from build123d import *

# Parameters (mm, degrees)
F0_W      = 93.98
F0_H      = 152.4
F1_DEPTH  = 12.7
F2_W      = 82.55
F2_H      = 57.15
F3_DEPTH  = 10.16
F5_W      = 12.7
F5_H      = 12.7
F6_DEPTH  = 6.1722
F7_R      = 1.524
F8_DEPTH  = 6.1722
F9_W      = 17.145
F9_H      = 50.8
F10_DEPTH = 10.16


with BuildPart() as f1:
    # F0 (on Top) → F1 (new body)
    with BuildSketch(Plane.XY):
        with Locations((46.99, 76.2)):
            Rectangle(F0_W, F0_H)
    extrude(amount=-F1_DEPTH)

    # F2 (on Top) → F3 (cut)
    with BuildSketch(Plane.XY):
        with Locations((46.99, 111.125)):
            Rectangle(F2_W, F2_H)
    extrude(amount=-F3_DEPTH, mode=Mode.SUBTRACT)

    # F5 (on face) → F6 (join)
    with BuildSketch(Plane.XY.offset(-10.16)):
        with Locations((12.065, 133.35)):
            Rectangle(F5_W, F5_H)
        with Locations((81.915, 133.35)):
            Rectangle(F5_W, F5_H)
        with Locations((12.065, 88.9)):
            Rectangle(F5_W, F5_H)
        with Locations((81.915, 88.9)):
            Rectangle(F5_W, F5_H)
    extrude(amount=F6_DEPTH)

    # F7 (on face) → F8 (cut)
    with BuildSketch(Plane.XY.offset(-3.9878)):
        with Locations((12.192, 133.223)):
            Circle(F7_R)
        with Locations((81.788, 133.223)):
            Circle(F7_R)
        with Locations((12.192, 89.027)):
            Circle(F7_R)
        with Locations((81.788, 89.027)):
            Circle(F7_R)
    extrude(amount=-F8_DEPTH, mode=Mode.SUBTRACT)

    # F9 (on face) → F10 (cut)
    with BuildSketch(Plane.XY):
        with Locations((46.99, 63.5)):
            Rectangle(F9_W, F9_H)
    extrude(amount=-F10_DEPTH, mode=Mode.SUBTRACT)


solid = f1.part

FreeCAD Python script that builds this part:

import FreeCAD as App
import Part
import Sketcher
Q = App.Units.Quantity

doc = App.newDocument("Part")
body = doc.addObject("PartDesign::Body", "Body")

sketch1 = body.newObject("Sketcher::SketchObject", "Sketch")
sketch1.AttachmentSupport = (doc.getObject("XY_Plane"), [""])
sketch1.MapMode = "FlatFace"
sketch1.addGeometry([
    Part.LineSegment(App.Vector(0, 152, 0), App.Vector(0, 0, 0)),
    Part.LineSegment(App.Vector(0, 0, 0), App.Vector(94, 0, 0)),
    Part.LineSegment(App.Vector(94, 0, 0), App.Vector(94, 152, 0)),
    Part.LineSegment(App.Vector(94, 152, 0), App.Vector(0, 152, 0)),
], False)
sketch1.addConstraint([
    Sketcher.Constraint("Coincident", 0, 2, 1, 1),
    Sketcher.Constraint("Coincident", 1, 2, 2, 1),
    Sketcher.Constraint("Coincident", 2, 2, 3, 1),
    Sketcher.Constraint("Coincident", 3, 2, 0, 1),
    Sketcher.Constraint("Vertical", 0),
    Sketcher.Constraint("Horizontal", 1),
    Sketcher.Constraint("Vertical", 2),
    Sketcher.Constraint("Horizontal", 3),
    Sketcher.Constraint("Coincident", 0, 2, -1, 1),
    Sketcher.Constraint("DistanceY", 0, 2, 0, 1, Q("6 in")),
    Sketcher.Constraint("DistanceX", 1, 1, 1, 2, Q("3.7 in")),
])
pad1 = body.newObject("PartDesign::Pad", "Pad")
pad1.Profile = sketch1
pad1.Length = Q("0.5 in")
pad1.Reversed = True

sketch2 = body.newObject("Sketcher::SketchObject", "Sketch001")
sketch2.AttachmentSupport = (doc.getObject("XY_Plane"), [""])
sketch2.MapMode = "FlatFace"
sketch2.addGeometry([
    Part.LineSegment(App.Vector(6, 140, 0), App.Vector(6, 83, 0)),
    Part.LineSegment(App.Vector(6, 83, 0), App.Vector(88, 83, 0)),
    Part.LineSegment(App.Vector(88, 83, 0), App.Vector(88, 140, 0)),
    Part.LineSegment(App.Vector(88, 140, 0), App.Vector(6, 140, 0)),
], False)
sketch2.addConstraint([
    Sketcher.Constraint("Coincident", 0, 2, 1, 1),
    Sketcher.Constraint("Coincident", 1, 2, 2, 1),
    Sketcher.Constraint("Coincident", 2, 2, 3, 1),
    Sketcher.Constraint("Coincident", 3, 2, 0, 1),
    Sketcher.Constraint("Vertical", 0),
    Sketcher.Constraint("Horizontal", 1),
    Sketcher.Constraint("Vertical", 2),
    Sketcher.Constraint("Horizontal", 3),
    Sketcher.Constraint("DistanceX", 1, 1, 1, 2, Q("3.25 in")),
    Sketcher.Constraint("DistanceY", 0, 2, 0, 1, Q("2.25 in")),
    Sketcher.Constraint("DistanceY", -1, 1, 2, 2, Q("5.5 in")),
    Sketcher.Constraint("DistanceX", -1, 1, 0, 2, Q("0.225 in")),
])
pocket1 = body.newObject("PartDesign::Pocket", "Pocket")
pocket1.Profile = sketch2
pocket1.Length = Q("0.4 in")

sketch3 = body.newObject("Sketcher::SketchObject", "Sketch002")
sketch3.AttachmentSupport = (doc.getObject("XY_Plane"), [""])
sketch3.MapMode = "FlatFace"
sketch3.AttachmentOffset = App.Placement(App.Vector(0, 0, -0.4 * 25.4), App.Rotation())
sketch3.addGeometry([
    Part.LineSegment(App.Vector(6, 140, 0), App.Vector(6, 127, 0)),
    Part.LineSegment(App.Vector(6, 127, 0), App.Vector(18, 127, 0)),
    Part.LineSegment(App.Vector(18, 127, 0), App.Vector(18, 140, 0)),
    Part.LineSegment(App.Vector(18, 140, 0), App.Vector(6, 140, 0)),
    Part.LineSegment(App.Vector(76, 140, 0), App.Vector(76, 127, 0)),
    Part.LineSegment(App.Vector(76, 127, 0), App.Vector(88, 127, 0)),
    Part.LineSegment(App.Vector(88, 127, 0), App.Vector(88, 140, 0)),
    Part.LineSegment(App.Vector(88, 140, 0), App.Vector(76, 140, 0)),
    Part.LineSegment(App.Vector(6, 95, 0), App.Vector(6, 83, 0)),
    Part.LineSegment(App.Vector(6, 83, 0), App.Vector(18, 83, 0)),
    Part.LineSegment(App.Vector(18, 83, 0), App.Vector(18, 95, 0)),
    Part.LineSegment(App.Vector(18, 95, 0), App.Vector(6, 95, 0)),
    Part.LineSegment(App.Vector(76, 95, 0), App.Vector(76, 83, 0)),
    Part.LineSegment(App.Vector(76, 83, 0), App.Vector(88, 83, 0)),
    Part.LineSegment(App.Vector(88, 83, 0), App.Vector(88, 95, 0)),
    Part.LineSegment(App.Vector(88, 95, 0), App.Vector(76, 95, 0)),
], False)
sketch3.addConstraint([
    Sketcher.Constraint("Coincident", 0, 2, 1, 1),
    Sketcher.Constraint("Coincident", 1, 2, 2, 1),
    Sketcher.Constraint("Coincident", 2, 2, 3, 1),
    Sketcher.Constraint("Coincident", 3, 2, 0, 1),
    Sketcher.Constraint("Coincident", 4, 2, 5, 1),
    Sketcher.Constraint("Coincident", 5, 2, 6, 1),
    Sketcher.Constraint("Coincident", 6, 2, 7, 1),
    Sketcher.Constraint("Coincident", 7, 2, 4, 1),
    Sketcher.Constraint("Coincident", 8, 2, 9, 1),
    Sketcher.Constraint("Coincident", 9, 2, 10, 1),
    Sketcher.Constraint("Coincident", 10, 2, 11, 1),
    Sketcher.Constraint("Coincident", 11, 2, 8, 1),
    Sketcher.Constraint("Coincident", 12, 2, 13, 1),
    Sketcher.Constraint("Coincident", 13, 2, 14, 1),
    Sketcher.Constraint("Coincident", 14, 2, 15, 1),
    Sketcher.Constraint("Coincident", 15, 2, 12, 1),
    Sketcher.Constraint("Vertical", 0),
    Sketcher.Constraint("Horizontal", 1),
    Sketcher.Constraint("Vertical", 2),
    Sketcher.Constraint("Horizontal", 3),
    Sketcher.Constraint("Vertical", 4),
    Sketcher.Constraint("Horizontal", 5),
    Sketcher.Constraint("Vertical", 6),
    Sketcher.Constraint("Horizontal", 7),
    Sketcher.Constraint("Vertical", 8),
    Sketcher.Constraint("Horizontal", 9),
    Sketcher.Constraint("Vertical", 10),
    Sketcher.Constraint("Horizontal", 11),
    Sketcher.Constraint("Vertical", 12),
    Sketcher.Constraint("Horizontal", 13),
    Sketcher.Constraint("Vertical", 14),
    Sketcher.Constraint("Horizontal", 15),
    Sketcher.Constraint("Horizontal", 1, 2, 4, 2),
    Sketcher.Constraint("Horizontal", 3, 2, 6, 2),
    Sketcher.Constraint("Horizontal", 9, 2, 12, 2),
    Sketcher.Constraint("Horizontal", 11, 2, 14, 2),
    Sketcher.Constraint("Vertical", 3, 2, 8, 2),
    Sketcher.Constraint("Vertical", 2, 2, 9, 2),
    Sketcher.Constraint("Vertical", 7, 2, 12, 2),
    Sketcher.Constraint("Vertical", 6, 2, 13, 2),
    Sketcher.Constraint("Equal", 3, 5),
    Sketcher.Constraint("Equal", 15, 0),
    Sketcher.Constraint("Equal", 6, 8),
    Sketcher.Constraint("DistanceX", 1, 1, 1, 2, Q("0.5 in")),
    Sketcher.Constraint("DistanceY", -1, 1, 0, 2, Q("5 in")),
    Sketcher.Constraint("DistanceY", -1, 1, 8, 2, Q("3.25 in")),
    Sketcher.Constraint("DistanceX", 1, 2, 4, 2, Q("2.25 in")),
    Sketcher.Constraint("DistanceX", -1, 1, 0, 2, Q("0.225 in")),
])
pad2 = body.newObject("PartDesign::Pad", "Pad001")
pad2.Profile = sketch3
pad2.Length = Q("0.243 in")

sketch4 = body.newObject("Sketcher::SketchObject", "Sketch003")
sketch4.AttachmentSupport = (doc.getObject("XY_Plane"), [""])
sketch4.MapMode = "FlatFace"
sketch4.AttachmentOffset = App.Placement(App.Vector(0, 0, -0.157 * 25.4), App.Rotation())
sketch4.addGeometry([
    Part.Circle(App.Vector(12.2, 133.2, 0), App.Vector(0, 0, 1), 1.5),
    Part.Circle(App.Vector(81.8, 133.2, 0), App.Vector(0, 0, 1), 1.5),
    Part.Circle(App.Vector(12.2, 89, 0), App.Vector(0, 0, 1), 1.5),
    Part.Circle(App.Vector(81.8, 89, 0), App.Vector(0, 0, 1), 1.5),
], False)
sketch4.addConstraint([
    Sketcher.Constraint("Equal", 0, 1),
    Sketcher.Constraint("Equal", 1, 2),
    Sketcher.Constraint("Equal", 2, 3),
    Sketcher.Constraint("Horizontal", 0, 3, 1, 3),
    Sketcher.Constraint("Horizontal", 2, 3, 3, 3),
    Sketcher.Constraint("Vertical", 0, 3, 2, 3),
    Sketcher.Constraint("Vertical", 1, 3, 3, 3),
    Sketcher.Constraint("Diameter", 0, Q("0.12 in")),
    Sketcher.Constraint("DistanceX", -1, 1, 0, 3, Q("0.48 in")),
    Sketcher.Constraint("DistanceX", -1, 1, 1, 3, Q("3.22 in")),
    Sketcher.Constraint("DistanceY", 2, 3, 0, 3, Q("1.74 in")),
    Sketcher.Constraint("DistanceY", -1, 1, 0, 3, Q("5.245 in")),
])
pocket2 = body.newObject("PartDesign::Pocket", "Pocket001")
pocket2.Profile = sketch4
pocket2.Length = Q("0.243 in")

sketch5 = body.newObject("Sketcher::SketchObject", "Sketch004")
sketch5.AttachmentSupport = (doc.getObject("XY_Plane"), [""])
sketch5.MapMode = "FlatFace"
sketch5.addGeometry([
    Part.LineSegment(App.Vector(38, 89, 0), App.Vector(38, 38, 0)),
    Part.LineSegment(App.Vector(38, 38, 0), App.Vector(56, 38, 0)),
    Part.LineSegment(App.Vector(56, 38, 0), App.Vector(56, 89, 0)),
    Part.LineSegment(App.Vector(56, 89, 0), App.Vector(38, 89, 0)),
], False)
sketch5.addConstraint([
    Sketcher.Constraint("Coincident", 0, 2, 1, 1),
    Sketcher.Constraint("Coincident", 1, 2, 2, 1),
    Sketcher.Constraint("Coincident", 2, 2, 3, 1),
    Sketcher.Constraint("Coincident", 3, 2, 0, 1),
    Sketcher.Constraint("Vertical", 0),
    Sketcher.Constraint("Horizontal", 1),
    Sketcher.Constraint("Vertical", 2),
    Sketcher.Constraint("Horizontal", 3),
    Sketcher.Constraint("DistanceY", 0, 2, 0, 1, Q("2 in")),
    Sketcher.Constraint("DistanceY", -1, 1, 0, 2, Q("1.5 in")),
    Sketcher.Constraint("DistanceX", 1, 1, 1, 2, Q("0.675 in")),
    Sketcher.Constraint("DistanceX", -1, 1, 1, 2, Q("2.1875 in")),
])
pocket3 = body.newObject("PartDesign::Pocket", "Pocket002")
pocket3.Profile = sketch5
pocket3.Length = Q("0.4 in")

doc.recompute()
